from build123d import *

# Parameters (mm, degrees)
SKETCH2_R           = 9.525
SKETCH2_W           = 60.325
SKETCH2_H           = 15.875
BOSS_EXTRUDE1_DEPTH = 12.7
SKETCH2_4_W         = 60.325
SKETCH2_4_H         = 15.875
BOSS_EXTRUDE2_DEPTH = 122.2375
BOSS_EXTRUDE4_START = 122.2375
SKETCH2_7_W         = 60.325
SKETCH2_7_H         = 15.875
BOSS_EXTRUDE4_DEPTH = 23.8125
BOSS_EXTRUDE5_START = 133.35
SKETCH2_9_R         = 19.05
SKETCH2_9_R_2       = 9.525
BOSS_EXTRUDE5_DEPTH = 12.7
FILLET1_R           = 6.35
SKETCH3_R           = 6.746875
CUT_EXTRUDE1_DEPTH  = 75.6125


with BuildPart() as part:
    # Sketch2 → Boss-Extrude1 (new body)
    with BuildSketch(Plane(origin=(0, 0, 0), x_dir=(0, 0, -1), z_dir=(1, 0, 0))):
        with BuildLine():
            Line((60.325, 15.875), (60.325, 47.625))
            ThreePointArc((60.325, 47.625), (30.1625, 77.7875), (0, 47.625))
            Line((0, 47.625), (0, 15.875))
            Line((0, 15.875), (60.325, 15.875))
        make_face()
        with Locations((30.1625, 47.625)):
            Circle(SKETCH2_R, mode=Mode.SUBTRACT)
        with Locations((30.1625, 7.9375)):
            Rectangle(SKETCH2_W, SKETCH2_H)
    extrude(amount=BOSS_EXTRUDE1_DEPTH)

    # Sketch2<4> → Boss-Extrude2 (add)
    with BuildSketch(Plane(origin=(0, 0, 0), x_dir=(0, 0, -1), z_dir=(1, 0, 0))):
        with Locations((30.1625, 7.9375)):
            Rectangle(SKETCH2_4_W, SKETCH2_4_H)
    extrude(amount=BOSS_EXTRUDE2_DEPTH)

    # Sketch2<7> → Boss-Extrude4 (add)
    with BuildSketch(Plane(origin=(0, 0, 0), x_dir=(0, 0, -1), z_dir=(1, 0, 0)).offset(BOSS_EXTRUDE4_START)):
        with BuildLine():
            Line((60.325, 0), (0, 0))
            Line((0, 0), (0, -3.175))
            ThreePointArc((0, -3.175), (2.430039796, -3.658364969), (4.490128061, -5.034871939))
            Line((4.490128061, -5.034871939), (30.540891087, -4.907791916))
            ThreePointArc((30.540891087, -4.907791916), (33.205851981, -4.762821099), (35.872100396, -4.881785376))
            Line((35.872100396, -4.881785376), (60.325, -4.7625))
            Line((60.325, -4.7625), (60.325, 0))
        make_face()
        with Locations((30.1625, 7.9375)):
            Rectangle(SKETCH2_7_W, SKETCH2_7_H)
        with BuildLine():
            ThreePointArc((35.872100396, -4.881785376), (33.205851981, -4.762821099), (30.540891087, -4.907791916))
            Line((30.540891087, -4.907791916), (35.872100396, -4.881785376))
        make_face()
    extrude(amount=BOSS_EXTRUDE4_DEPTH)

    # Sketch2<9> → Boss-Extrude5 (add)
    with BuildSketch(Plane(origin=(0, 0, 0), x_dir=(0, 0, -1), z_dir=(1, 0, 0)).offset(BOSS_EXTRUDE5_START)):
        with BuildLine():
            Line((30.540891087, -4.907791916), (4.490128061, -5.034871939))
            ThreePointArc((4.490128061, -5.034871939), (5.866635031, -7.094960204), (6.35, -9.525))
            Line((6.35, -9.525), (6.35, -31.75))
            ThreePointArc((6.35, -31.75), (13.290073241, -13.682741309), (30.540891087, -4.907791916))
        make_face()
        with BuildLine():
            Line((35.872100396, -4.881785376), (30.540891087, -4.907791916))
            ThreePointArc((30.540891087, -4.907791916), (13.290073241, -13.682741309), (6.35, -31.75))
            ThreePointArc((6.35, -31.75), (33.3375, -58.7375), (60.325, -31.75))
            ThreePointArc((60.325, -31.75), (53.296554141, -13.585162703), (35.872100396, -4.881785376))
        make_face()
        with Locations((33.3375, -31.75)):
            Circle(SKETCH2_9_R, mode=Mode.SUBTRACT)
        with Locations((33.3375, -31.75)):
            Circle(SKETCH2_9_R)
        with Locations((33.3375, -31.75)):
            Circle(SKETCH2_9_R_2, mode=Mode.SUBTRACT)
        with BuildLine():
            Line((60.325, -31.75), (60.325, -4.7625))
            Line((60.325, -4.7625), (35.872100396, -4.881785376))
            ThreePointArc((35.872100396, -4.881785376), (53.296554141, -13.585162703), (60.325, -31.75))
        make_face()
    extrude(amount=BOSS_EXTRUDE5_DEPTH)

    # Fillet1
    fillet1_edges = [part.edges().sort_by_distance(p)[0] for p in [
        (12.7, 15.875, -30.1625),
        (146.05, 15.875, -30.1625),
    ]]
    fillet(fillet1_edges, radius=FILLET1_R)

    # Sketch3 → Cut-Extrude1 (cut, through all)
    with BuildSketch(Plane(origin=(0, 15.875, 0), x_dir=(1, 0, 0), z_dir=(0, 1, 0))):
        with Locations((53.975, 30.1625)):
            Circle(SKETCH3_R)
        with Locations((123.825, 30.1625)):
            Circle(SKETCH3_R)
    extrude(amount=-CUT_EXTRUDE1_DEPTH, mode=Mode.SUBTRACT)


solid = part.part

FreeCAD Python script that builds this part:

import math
import FreeCAD as App
import Part
import Sketcher

V = App.Vector
Q = App.Units.Quantity


def edges_at(feature, points):
    """Names of the edges that pass closest to the given points."""
    edges = feature.Shape.Edges
    near = lambda p: min(range(len(edges)), key=lambda i: edges[i].distToShape(Part.Vertex(*p))[0])
    return sorted({f"Edge{near(p) + 1}" for p in points})

doc = App.newDocument("Part")
body = doc.addObject("PartDesign::Body", "Body")

sketch1 = body.newObject("Sketcher::SketchObject", "Sketch")
sketch1.AttachmentSupport = (doc.getObject("YZ_Plane"), [""])
sketch1.MapMode = "FlatFace"
sketch1.addGeometry([
    Part.ArcOfCircle(Part.Circle(V(48, -30, 0), V(0, 0, 1), 30), math.radians(-90), math.radians(90)),
    Part.LineSegment(V(48, 0, 0), V(0, 0, 0)),
    Part.LineSegment(V(0, 0, 0), V(0, -60, 0)),
    Part.LineSegment(V(0, -60, 0), V(48, -60, 0)),
    Part.Circle(V(48, -30, 0), V(0, 0, 1), 10),
], False)
sketch1.addConstraint([
    Sketcher.Constraint("Tangent", 0, 2, 1, 1),
    Sketcher.Constraint("Coincident", 1, 2, 2, 1),
    Sketcher.Constraint("Coincident", 2, 2, 3, 1),
    Sketcher.Constraint("Tangent", 3, 2, 0, 1),
    Sketcher.Constraint("Horizontal", 1),
    Sketcher.Constraint("Vertical", 2),
    Sketcher.Constraint("Horizontal", 3),
    Sketcher.Constraint("Coincident", 1, 2, -1, 1),
    Sketcher.Constraint("Coincident", 4, 3, 0, 3),
    Sketcher.Constraint("Diameter", 4, Q("0.75 in")),
    Sketcher.Constraint("Radius", 0, Q("1.1875 in")),
    Sketcher.Constraint("DistanceX", 1, 2, 1, 1, Q("1.875 in")),
])
pad1 = body.newObject("PartDesign::Pad", "Pad")
pad1.Profile = sketch1
pad1.Length = Q("0.5 in")

sketch2 = body.newObject("Sketcher::SketchObject", "Sketch001")
sketch2.AttachmentSupport = (doc.getObject("YZ_Plane"), [""])
sketch2.MapMode = "FlatFace"
sketch2.addGeometry([
    Part.LineSegment(V(16, 0, 0), V(0, 0, 0)),
    Part.LineSegment(V(0, 0, 0), V(0, -60, 0)),
    Part.LineSegment(V(0, -60, 0), V(16, -60, 0)),
    Part.LineSegment(V(16, -60, 0), V(16, 0, 0)),
], False)
sketch2.addConstraint([
    Sketcher.Constraint("Coincident", 0, 2, 1, 1),
    Sketcher.Constraint("Coincident", 1, 2, 2, 1),
    Sketcher.Constraint("Coincident", 2, 2, 3, 1),
    Sketcher.Constraint("Coincident", 3, 2, 0, 1),
    Sketcher.Constraint("Horizontal", 0),
    Sketcher.Constraint("Vertical", 1),
    Sketcher.Constraint("Horizontal", 2),
    Sketcher.Constraint("Vertical", 3),
    Sketcher.Constraint("Coincident", 0, 2, -1, 1),
    Sketcher.Constraint("DistanceX", 0, 2, 0, 1, Q("0.625 in")),
    Sketcher.Constraint("DistanceY", 1, 2, 1, 1, Q("2.375 in")),
])
pad2 = body.newObject("PartDesign::Pad", "Pad001")
pad2.Profile = sketch2
pad2.Length = Q("4.8125 in")

sketch3 = body.newObject("Sketcher::SketchObject", "Sketch002")
sketch3.AttachmentSupport = (doc.getObject("YZ_Plane"), [""])
sketch3.MapMode = "FlatFace"
sketch3.AttachmentOffset = App.Placement(V(0, 0, 4.8125 * 25.4), App.Rotation())
sketch3.addGeometry([
    Part.ArcOfCircle(Part.Circle(V(-9.5, 0, 0), V(0, 0, 1), 6.4), math.radians(-45), math.radians(0)),
    Part.LineSegment(V(-5, -4.5, 0), V(-4.9, -30.5, 0)),
    Part.LineSegment(V(-4.9, -30.5, 0), V(-4.9, -35.9, 0)),
    Part.LineSegment(V(-4.9, -35.9, 0), V(-4.8, -60.3, 0)),
    Part.LineSegment(V(-4.8, -60.3, 0), V(15.9, -60.3, 0)),
    Part.LineSegment(V(15.9, -60.3, 0), V(15.9, 0, 0)),
    Part.LineSegment(V(15.9, 0, 0), V(-3.2, 0, 0)),
], False)
sketch3.addConstraint([
    Sketcher.Constraint("Coincident", 0, 1, 1, 1),
    Sketcher.Constraint("Coincident", 1, 2, 2, 1),
    Sketcher.Constraint("Coincident", 2, 2, 3, 1),
    Sketcher.Constraint("Coincident", 3, 2, 4, 1),
    Sketcher.Constraint("Coincident", 4, 2, 5, 1),
    Sketcher.Constraint("Coincident", 5, 2, 6, 1),
    Sketcher.Constraint("Coincident", 6, 2, 0, 2),
    Sketcher.Constraint("Horizontal", 4),
    Sketcher.Constraint("Vertical", 5),
    Sketcher.Constraint("Horizontal", 6),
    Sketcher.Constraint("PointOnObject", 0, 3, -1),
    Sketcher.Constraint("PointOnObject", 5, 2, -1),
    Sketcher.Constraint("Parallel", 1, 2),
    Sketcher.Constraint("Parallel", 2, 3),
    Sketcher.Constraint("Radius", 0, Q("0.25 in")),
    Sketcher.Constraint("DistanceX", 0, 3, 4, 2, Q("1 in")),
    Sketcher.Constraint("DistanceX", 4, 1, 4, 2, Q("0.8125 in")),
    Sketcher.Constraint("DistanceY", 5, 1, 5, 2, Q("2.375 in")),
    Sketcher.Constraint("DistanceX", 0, 3, -1, 1, Q("0.375 in")),
    Sketcher.Constraint("DistanceY", 2, 2, -1, 1, 35.8721),
    Sketcher.Constraint("DistanceX", 0, 1, -1, 1, 5.034872),
    Sketcher.Constraint("DistanceX", 1, 2, -1, 1, 4.907792),
])
pad3 = body.newObject("PartDesign::Pad", "Pad002")
pad3.Profile = sketch3
pad3.Length = Q("0.9375 in")

sketch4 = body.newObject("Sketcher::SketchObject", "Sketch003")
sketch4.AttachmentSupport = (doc.getObject("YZ_Plane"), [""])
sketch4.MapMode = "FlatFace"
sketch4.AttachmentOffset = App.Placement(V(0, 0, 5.25 * 25.4), App.Rotation())
sketch4.addGeometry([
    Part.LineSegment(V(-4.9, -30.5, 0), V(-5, -4.5, 0)),
    Part.ArcOfCircle(Part.Circle(V(-9.5, 0, 0), V(0, 0, 1), 6.4), math.radians(-90), math.radians(-45)),
    Part.LineSegment(V(-9.5, -6.3, 0), V(-31.8, -6.3, 0)),
    Part.ArcOfCircle(Part.Circle(V(-31.8, -33.3, 0), V(0, 0, 1), 27), math.radians(90), math.radians(270)),
    Part.LineSegment(V(-31.8, -60.3, 0), V(-4.8, -60.3, 0)),
    Part.LineSegment(V(-4.8, -60.3, 0), V(-4.9, -35.9, 0)),
    Part.LineSegment(V(-4.9, -35.9, 0), V(-4.9, -30.5, 0)),
    Part.Circle(V(-31.8, -33.3, 0), V(0, 0, 1), 9.5),
], False)
sketch4.addConstraint([
    Sketcher.Constraint("Coincident", 0, 2, 1, 2),
    Sketcher.Constraint("Tangent", 1, 1, 2, 1),
    Sketcher.Constraint("Tangent", 2, 2, 3, 1),
    Sketcher.Constraint("Tangent", 3, 2, 4, 1),
    Sketcher.Constraint("Coincident", 4, 2, 5, 1),
    Sketcher.Constraint("Coincident", 5, 2, 6, 1),
    Sketcher.Constraint("Coincident", 6, 2, 0, 1),
    Sketcher.Constraint("Horizontal", 2),
    Sketcher.Constraint("Horizontal", 4),
    Sketcher.Constraint("Coincident", 7, 3, 3, 3),
    Sketcher.Constraint("PointOnObject", 1, 3, -1),
    Sketcher.Constraint("Parallel", 0, 5),
    Sketcher.Constraint("Parallel", 5, 6),
    Sketcher.Constraint("Diameter", 7, Q("0.75 in")),
    Sketcher.Constraint("Radius", 1, Q("0.25 in")),
    Sketcher.Constraint("Radius", 3, Q("1.0625 in")),
    Sketcher.Constraint("DistanceX", 2, 2, 2, 1, Q("0.875 in")),
    Sketcher.Constraint("DistanceX", 4, 1, 4, 2, Q("1.0625 in")),
    Sketcher.Constraint("DistanceX", 3, 3, -1, 1, Q("1.25 in")),
    Sketcher.Constraint("DistanceY", 5, 2, -1, 1, 35.8721),
    Sketcher.Constraint("DistanceX", 0, 2, -1, 1, 5.034872),
    Sketcher.Constraint("DistanceX", 6, 2, -1, 1, 4.907792),
])
pad4 = body.newObject("PartDesign::Pad", "Pad003")
pad4.Profile = sketch4
pad4.Length = Q("0.5 in")
doc.recompute()

fillet = body.newObject("PartDesign::Fillet", "Fillet")
fillet.Base = (pad4, edges_at(pad4, [(12.7, 15.875, -30.163), (146.05, 15.875, -30.163)]))
fillet.Radius = Q("0.25 in")

sketch5 = body.newObject("Sketcher::SketchObject", "Sketch004")
sketch5.AttachmentSupport = (doc.getObject("XZ_Plane"), [""])
sketch5.MapMode = "FlatFace"
sketch5.AttachmentOffset = App.Placement(V(0, 0, -0.625 * 25.4), App.Rotation())
sketch5.addGeometry([
    Part.Circle(V(54, -30, 0), V(0, 0, 1), 7),
    Part.Circle(V(124, -30, 0), V(0, 0, 1), 7),
], False)
sketch5.addConstraint([
    Sketcher.Constraint("Equal", 0, 1),
    Sketcher.Constraint("Horizontal", 0, 3, 1, 3),
    Sketcher.Constraint("Diameter", 0, Q("0.53125 in")),
    Sketcher.Constraint("DistanceX", 0, 3, 1, 3, Q("2.75 in")),
    Sketcher.Constraint("DistanceX", -1, 1, 0, 3, Q("2.125 in")),
    Sketcher.Constraint("DistanceY", 0, 3, -1, 1, Q("1.1875 in")),
])
pocket1 = body.newObject("PartDesign::Pocket", "Pocket")
pocket1.Profile = sketch5
pocket1.Type = "ThroughAll"
pocket1.Reversed = True

doc.recompute()
